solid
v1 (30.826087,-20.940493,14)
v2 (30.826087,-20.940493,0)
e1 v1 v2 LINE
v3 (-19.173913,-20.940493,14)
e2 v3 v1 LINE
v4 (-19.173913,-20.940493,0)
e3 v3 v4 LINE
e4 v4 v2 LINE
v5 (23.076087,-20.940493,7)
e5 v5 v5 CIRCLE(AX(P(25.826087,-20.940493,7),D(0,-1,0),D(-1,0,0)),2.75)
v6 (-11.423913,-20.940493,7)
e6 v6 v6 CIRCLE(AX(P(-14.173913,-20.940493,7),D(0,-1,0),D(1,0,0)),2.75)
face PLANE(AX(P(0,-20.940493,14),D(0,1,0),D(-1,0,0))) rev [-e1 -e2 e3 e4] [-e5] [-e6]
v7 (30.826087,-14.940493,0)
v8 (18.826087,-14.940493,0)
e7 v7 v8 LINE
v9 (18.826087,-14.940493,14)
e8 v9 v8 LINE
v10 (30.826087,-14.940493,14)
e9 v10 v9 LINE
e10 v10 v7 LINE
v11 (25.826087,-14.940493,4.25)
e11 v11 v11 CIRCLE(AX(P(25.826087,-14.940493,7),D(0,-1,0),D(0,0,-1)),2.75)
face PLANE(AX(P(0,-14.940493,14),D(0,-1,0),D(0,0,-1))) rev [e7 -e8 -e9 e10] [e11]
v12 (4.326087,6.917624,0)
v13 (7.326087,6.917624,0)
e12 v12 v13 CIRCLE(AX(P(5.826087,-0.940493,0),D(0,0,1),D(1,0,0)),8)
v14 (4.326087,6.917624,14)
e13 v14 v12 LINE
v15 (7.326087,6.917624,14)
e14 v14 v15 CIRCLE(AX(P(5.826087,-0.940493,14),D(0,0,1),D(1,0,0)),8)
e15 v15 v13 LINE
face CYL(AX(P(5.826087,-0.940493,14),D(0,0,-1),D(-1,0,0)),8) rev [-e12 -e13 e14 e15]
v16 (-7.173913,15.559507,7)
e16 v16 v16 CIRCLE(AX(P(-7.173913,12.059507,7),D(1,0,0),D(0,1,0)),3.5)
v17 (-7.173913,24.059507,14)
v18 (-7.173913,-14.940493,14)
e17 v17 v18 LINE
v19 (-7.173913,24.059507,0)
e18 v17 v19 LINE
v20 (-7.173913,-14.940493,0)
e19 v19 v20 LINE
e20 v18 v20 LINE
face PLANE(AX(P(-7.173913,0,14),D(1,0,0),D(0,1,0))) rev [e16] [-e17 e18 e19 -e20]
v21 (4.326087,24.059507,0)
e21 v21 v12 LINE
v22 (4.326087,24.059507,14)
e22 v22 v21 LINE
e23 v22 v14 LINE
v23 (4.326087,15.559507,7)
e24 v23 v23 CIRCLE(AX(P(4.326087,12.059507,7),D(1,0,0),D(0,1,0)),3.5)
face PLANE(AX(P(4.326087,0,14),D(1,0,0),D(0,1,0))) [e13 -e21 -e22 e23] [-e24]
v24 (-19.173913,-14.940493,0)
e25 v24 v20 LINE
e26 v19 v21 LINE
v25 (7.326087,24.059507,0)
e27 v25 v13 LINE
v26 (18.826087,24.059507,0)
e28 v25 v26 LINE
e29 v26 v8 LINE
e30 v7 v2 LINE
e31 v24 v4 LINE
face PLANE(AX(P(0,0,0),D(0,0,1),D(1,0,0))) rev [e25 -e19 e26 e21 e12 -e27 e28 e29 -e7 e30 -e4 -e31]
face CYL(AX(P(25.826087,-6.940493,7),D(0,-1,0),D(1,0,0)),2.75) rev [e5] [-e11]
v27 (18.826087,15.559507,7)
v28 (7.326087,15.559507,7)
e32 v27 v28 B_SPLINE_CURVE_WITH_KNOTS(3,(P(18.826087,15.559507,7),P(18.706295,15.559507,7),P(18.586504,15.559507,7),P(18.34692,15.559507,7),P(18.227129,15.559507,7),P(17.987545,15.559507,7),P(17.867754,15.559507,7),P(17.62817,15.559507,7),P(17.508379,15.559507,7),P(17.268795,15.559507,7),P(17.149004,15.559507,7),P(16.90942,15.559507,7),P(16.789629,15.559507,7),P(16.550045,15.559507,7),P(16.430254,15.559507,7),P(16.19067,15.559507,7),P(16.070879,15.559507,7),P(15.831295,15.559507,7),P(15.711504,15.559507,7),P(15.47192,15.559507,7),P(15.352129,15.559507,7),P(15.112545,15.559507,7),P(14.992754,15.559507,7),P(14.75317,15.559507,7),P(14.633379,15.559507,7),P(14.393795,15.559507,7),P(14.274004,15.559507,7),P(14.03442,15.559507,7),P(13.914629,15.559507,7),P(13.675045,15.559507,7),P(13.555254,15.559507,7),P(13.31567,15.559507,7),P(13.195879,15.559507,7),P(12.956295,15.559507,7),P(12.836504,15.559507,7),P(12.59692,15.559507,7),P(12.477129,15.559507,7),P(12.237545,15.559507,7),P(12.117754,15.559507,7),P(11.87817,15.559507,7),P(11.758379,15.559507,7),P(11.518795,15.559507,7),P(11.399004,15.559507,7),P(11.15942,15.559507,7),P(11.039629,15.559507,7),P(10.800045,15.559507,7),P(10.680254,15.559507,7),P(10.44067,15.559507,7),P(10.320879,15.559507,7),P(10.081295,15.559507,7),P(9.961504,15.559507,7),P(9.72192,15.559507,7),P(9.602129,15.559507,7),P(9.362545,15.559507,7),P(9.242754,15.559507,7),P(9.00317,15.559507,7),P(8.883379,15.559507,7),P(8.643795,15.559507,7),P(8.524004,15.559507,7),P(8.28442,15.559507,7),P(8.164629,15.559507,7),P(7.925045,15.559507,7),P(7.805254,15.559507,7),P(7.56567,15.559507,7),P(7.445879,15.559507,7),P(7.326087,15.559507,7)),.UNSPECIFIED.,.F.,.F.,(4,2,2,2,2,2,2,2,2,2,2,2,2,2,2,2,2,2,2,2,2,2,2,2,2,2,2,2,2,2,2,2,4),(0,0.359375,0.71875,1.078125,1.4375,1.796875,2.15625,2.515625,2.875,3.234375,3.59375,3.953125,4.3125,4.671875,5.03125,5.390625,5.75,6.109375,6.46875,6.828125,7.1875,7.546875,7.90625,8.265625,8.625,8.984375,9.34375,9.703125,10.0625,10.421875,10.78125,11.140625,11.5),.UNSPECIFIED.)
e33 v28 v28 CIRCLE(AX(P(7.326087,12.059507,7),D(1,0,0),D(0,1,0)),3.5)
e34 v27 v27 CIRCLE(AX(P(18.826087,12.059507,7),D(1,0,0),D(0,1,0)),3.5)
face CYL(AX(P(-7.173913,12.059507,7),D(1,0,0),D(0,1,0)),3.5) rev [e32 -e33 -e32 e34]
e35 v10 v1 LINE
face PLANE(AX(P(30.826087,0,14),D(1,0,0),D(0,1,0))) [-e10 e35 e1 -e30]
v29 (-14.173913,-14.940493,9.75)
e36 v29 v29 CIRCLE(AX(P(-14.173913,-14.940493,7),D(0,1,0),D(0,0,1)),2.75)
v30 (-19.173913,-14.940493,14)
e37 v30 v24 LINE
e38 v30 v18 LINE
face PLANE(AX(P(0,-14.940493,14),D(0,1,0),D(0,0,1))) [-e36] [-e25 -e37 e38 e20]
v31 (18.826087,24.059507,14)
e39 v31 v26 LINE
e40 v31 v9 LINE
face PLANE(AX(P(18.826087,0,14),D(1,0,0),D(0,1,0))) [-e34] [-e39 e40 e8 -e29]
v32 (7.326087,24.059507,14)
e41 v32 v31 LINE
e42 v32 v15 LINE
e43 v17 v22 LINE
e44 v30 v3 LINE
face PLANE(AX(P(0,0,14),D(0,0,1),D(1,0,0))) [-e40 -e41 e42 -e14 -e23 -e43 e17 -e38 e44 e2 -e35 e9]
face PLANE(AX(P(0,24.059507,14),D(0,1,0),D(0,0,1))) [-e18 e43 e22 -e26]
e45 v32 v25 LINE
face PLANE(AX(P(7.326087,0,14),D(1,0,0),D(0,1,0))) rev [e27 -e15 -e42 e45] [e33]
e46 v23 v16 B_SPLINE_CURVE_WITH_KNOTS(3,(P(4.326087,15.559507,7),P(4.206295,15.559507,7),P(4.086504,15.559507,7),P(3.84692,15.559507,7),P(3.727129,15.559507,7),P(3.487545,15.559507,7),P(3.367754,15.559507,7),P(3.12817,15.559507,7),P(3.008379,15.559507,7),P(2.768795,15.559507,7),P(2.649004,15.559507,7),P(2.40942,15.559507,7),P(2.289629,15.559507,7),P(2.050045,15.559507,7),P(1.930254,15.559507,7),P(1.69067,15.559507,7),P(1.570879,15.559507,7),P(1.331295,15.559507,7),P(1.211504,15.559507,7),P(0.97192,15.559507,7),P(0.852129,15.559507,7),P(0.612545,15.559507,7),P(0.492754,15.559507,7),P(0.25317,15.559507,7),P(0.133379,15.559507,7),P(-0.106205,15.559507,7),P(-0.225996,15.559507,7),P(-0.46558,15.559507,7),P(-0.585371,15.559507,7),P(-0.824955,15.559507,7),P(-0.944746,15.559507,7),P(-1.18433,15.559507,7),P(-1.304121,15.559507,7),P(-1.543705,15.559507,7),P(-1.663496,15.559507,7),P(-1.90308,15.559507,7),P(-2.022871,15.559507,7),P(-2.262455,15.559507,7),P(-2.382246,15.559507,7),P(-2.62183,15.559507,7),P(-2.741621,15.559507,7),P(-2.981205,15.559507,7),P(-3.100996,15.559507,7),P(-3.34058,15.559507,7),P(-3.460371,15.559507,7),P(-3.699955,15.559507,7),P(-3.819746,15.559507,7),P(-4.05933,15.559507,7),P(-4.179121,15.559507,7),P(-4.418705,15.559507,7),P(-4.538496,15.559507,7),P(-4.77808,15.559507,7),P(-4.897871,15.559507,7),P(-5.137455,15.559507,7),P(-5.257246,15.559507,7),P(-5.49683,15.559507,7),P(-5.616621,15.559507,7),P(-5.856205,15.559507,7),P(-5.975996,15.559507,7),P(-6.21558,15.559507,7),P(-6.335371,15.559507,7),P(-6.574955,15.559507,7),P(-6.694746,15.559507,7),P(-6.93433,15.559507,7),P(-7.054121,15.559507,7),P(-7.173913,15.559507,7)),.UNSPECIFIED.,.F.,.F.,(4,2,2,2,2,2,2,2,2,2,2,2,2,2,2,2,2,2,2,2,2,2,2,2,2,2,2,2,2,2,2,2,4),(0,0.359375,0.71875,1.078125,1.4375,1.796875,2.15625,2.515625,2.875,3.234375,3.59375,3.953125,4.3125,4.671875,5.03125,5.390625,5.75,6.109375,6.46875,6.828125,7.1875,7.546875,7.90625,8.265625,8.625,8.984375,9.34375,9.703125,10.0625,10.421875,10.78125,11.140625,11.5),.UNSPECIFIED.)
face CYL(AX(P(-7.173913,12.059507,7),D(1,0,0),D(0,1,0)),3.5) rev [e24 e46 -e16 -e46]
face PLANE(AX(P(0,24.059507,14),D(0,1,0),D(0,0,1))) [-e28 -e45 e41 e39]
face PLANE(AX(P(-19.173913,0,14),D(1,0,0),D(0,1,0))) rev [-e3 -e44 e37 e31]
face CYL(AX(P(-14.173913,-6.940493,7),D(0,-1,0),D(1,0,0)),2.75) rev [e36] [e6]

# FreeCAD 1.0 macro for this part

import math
import FreeCAD as App
import Part
import Sketcher
from FreeCAD import Vector
Q = App.Units.Quantity

doc = App.newDocument("Part")
body = doc.addObject("PartDesign::Body", "Body")

# Sketch on XY plane
sketch1 = body.newObject("Sketcher::SketchObject", "Sketch")
sketch1.AttachmentSupport = (doc.getObject("XY_Plane"), [""])
sketch1.MapMode = "FlatFace"
sketch1.addGeometry([
    Part.LineSegment(Vector(4, 24, 0), Vector(-7, 24, 0)),  # 0
    Part.LineSegment(Vector(-7, 24, 0), Vector(-7, -15, 0)),  # 1
    Part.LineSegment(Vector(-7, -15, 0), Vector(-19, -15, 0)),  # 2
    Part.LineSegment(Vector(-19, -15, 0), Vector(-19, -21, 0)),  # 3
    Part.LineSegment(Vector(-19, -21, 0), Vector(31, -21, 0)),  # 4
    Part.LineSegment(Vector(31, -21, 0), Vector(31, -15, 0)),  # 5
    Part.LineSegment(Vector(31, -15, 0), Vector(19, -15, 0)),  # 6
    Part.LineSegment(Vector(19, -15, 0), Vector(19, 24, 0)),  # 7
    Part.LineSegment(Vector(19, 24, 0), Vector(7, 24, 0)),  # 8
    Part.LineSegment(Vector(7, 24, 0), Vector(7, 7, 0)),  # 9
    Part.ArcOfCircle(Part.Circle(Vector(6, -1, 0), Vector(0, 0, 1), 8), math.radians(0), math.radians(79)),  # 10
    Part.ArcOfCircle(Part.Circle(Vector(6, -1, 0), Vector(0, 0, 1), 8), math.radians(101), math.radians(360)),  # 11
    Part.LineSegment(Vector(4, 7, 0), Vector(4, 24, 0)),  # 12
], False)
sketch1.addConstraint([
    Sketcher.Constraint("Coincident", 0, 2, 1, 1),
    Sketcher.Constraint("Coincident", 1, 2, 2, 1),
    Sketcher.Constraint("Coincident", 2, 2, 3, 1),
    Sketcher.Constraint("Coincident", 3, 2, 4, 1),
    Sketcher.Constraint("Coincident", 4, 2, 5, 1),
    Sketcher.Constraint("Coincident", 5, 2, 6, 1),
    Sketcher.Constraint("Coincident", 6, 2, 7, 1),
    Sketcher.Constraint("Coincident", 7, 2, 8, 1),
    Sketcher.Constraint("Coincident", 8, 2, 9, 1),
    Sketcher.Constraint("Coincident", 9, 2, 10, 2),
    Sketcher.Constraint("Tangent", 10, 1, 11, 2),
    Sketcher.Constraint("Coincident", 11, 1, 12, 1),
    Sketcher.Constraint("Coincident", 12, 2, 0, 1),
    Sketcher.Constraint("Horizontal", 0),
    Sketcher.Constraint("Vertical", 1),
    Sketcher.Constraint("Horizontal", 2),
    Sketcher.Constraint("Vertical", 3),
    Sketcher.Constraint("Horizontal", 4),
    Sketcher.Constraint("Vertical", 5),
    Sketcher.Constraint("Horizontal", 6),
    Sketcher.Constraint("Vertical", 7),
    Sketcher.Constraint("Horizontal", 8),
    Sketcher.Constraint("Vertical", 9),
    Sketcher.Constraint("Vertical", 12),
    Sketcher.Constraint("Equal", 10, 11),
    Sketcher.Constraint("Horizontal", 2, 2, 5, 2),
    Sketcher.Constraint("Horizontal", 0, 2, 7, 2),
    Sketcher.Constraint("Horizontal", 11, 3, 10, 1),
    Sketcher.Constraint("Horizontal", 9, 2, 11, 1),
    Sketcher.Constraint("Equal", 2, 6),
    Sketcher.Constraint("Equal", 0, 8),
    Sketcher.Constraint("Radius", 10, Q("8 mm")),
    Sketcher.Constraint("DistanceX", 2, 2, 2, 1, Q("12 mm")),
    Sketcher.Constraint("DistanceX", 4, 1, 4, 2, Q("50 mm")),
    Sketcher.Constraint("DistanceY", 1, 2, 1, 1, Q("39 mm")),
    Sketcher.Constraint("DistanceY", 3, 2, 3, 1, Q("6 mm")),
    Sketcher.Constraint("DistanceX", 0, 2, 0, 1, Q("11.5 mm")),
    Sketcher.Constraint("DistanceY", 11, 3, 0, 2, Q("25 mm")),
    Sketcher.Constraint("DistanceX", -1, 1, 10, 3, Q("5.826087 mm")),
    Sketcher.Constraint("DistanceY", 10, 3, -1, 1, Q("0.940493 mm")),
])
pad1 = body.newObject("PartDesign::Pad", "Pad")
pad1.Profile = sketch1
pad1.Length = 14

# Sketch on YZ plane
sketch2 = body.newObject("Sketcher::SketchObject", "Sketch001")
sketch2.AttachmentSupport = (doc.getObject("YZ_Plane"), [""])
sketch2.MapMode = "FlatFace"
sketch2.AttachmentOffset = App.Placement(Vector(0, 0, -7.173913), App.Rotation())
sketch2.addGeometry(Part.Circle(Vector(12.1, 7, 0), Vector(0, 0, 1), 3.5), False)
sketch2.addConstraint([
    Sketcher.Constraint("Diameter", 0, Q("7 mm")),
    Sketcher.Constraint("DistanceY", -1, 1, 0, 3, Q("7 mm")),
    Sketcher.Constraint("DistanceX", -1, 1, 0, 3, Q("12.059507 mm")),
])
pocket1 = body.newObject("PartDesign::Pocket", "Pocket")
pocket1.Profile = sketch2
pocket1.Length = 26
pocket1.Reversed = True

# Sketch on XZ plane
sketch3 = body.newObject("Sketcher::SketchObject", "Sketch002")
sketch3.AttachmentSupport = (doc.getObject("XZ_Plane"), [""])
sketch3.MapMode = "FlatFace"
sketch3.AttachmentOffset = App.Placement(Vector(0, 0, 20.940493), App.Rotation())
sketch3.addGeometry([
    Part.Circle(Vector(-14.2, 7, 0), Vector(0, 0, 1), 2.8),
    Part.Circle(Vector(25.8, 7, 0), Vector(0, 0, 1), 2.8),
], False)
sketch3.addConstraint([
    Sketcher.Constraint("Equal", 0, 1),
    Sketcher.Constraint("Horizontal", 0, 3, 1, 3),
    Sketcher.Constraint("Diameter", 0, Q("5.5 mm")),
    Sketcher.Constraint("DistanceY", -1, 1, 0, 3, Q("7 mm")),
    Sketcher.Constraint("DistanceX", 0, 3, 1, 3, Q("40 mm")),
    Sketcher.Constraint("DistanceX", 0, 3, -1, 1, Q("14.173913 mm")),
])
pocket2 = body.newObject("PartDesign::Pocket", "Pocket001")
pocket2.Profile = sketch3
pocket2.Length = 14

doc.recompute()
